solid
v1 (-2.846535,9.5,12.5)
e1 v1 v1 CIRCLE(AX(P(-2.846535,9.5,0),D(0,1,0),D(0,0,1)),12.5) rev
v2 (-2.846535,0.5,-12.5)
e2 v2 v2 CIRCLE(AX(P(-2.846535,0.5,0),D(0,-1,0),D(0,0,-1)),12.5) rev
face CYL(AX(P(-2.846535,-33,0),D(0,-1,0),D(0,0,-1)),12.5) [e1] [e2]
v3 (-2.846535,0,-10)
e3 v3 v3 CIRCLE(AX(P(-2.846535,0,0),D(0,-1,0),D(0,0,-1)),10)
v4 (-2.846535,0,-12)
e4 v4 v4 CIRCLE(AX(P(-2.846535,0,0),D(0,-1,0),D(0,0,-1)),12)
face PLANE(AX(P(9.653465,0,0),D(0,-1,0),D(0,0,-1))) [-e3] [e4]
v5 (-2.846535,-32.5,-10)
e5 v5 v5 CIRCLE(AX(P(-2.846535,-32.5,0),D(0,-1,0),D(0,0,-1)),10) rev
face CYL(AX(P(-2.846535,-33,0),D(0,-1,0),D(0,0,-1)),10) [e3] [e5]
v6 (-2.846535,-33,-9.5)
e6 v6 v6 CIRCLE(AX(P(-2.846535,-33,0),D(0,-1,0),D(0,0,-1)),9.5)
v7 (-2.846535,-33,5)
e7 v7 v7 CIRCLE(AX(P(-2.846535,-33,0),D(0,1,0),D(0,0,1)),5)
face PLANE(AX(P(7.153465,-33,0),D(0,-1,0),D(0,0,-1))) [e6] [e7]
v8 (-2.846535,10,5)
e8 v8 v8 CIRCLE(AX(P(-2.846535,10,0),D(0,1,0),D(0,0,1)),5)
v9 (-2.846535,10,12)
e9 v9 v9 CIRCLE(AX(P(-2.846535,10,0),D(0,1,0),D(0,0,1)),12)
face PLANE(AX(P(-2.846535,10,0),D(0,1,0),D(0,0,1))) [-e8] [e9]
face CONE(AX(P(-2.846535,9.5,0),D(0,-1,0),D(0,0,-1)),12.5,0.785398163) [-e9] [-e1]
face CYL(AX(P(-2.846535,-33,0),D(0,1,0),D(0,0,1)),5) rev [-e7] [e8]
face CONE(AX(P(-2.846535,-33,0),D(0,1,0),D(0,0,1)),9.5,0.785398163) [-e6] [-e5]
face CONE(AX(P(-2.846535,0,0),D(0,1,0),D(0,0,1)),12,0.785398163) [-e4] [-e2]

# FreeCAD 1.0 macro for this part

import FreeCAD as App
import Part
import Sketcher
from FreeCAD import Vector


def edges_at(feature, points):
    """Names of the edges that pass closest to the given points."""
    edges = feature.Shape.Edges
    near = lambda p: min(range(len(edges)), key=lambda i: edges[i].distToShape(Part.Vertex(*p))[0])
    return sorted({f"Edge{near(p) + 1}" for p in points})

doc = App.newDocument("Part")
body = doc.addObject("PartDesign::Body", "Body")

sketch1 = body.newObject("Sketcher::SketchObject", "Sketch")
sketch1.AttachmentSupport = (doc.getObject("XY_Plane"), [""])
sketch1.MapMode = "FlatFace"
sketch1.addGeometry(Part.LineSegment(Vector(9.7, 10, 0), Vector(-2.8, 10, 0)), False)
sketch1.addGeometry(Part.LineSegment(Vector(-2.8, 10, 0), Vector(-2.8, -33, 0)), False)
sketch1.addGeometry(Part.LineSegment(Vector(-2.8, -33, 0), Vector(7.2, -33, 0)), False)
sketch1.addGeometry(Part.LineSegment(Vector(7.2, -33, 0), Vector(7.2, 0, 0)), False)
sketch1.addGeometry(Part.LineSegment(Vector(7.2, 0, 0), Vector(9.7, 0, 0)), False)
sketch1.addGeometry(Part.LineSegment(Vector(9.7, 0, 0), Vector(9.7, 10, 0)), False)
sketch1.addGeometry(Part.LineSegment(Vector(-2.8, -33, 0), Vector(-2.8, 10, 0)), True)
sketch1.addConstraint(Sketcher.Constraint("Coincident", 0, 2, 1, 1))
sketch1.addConstraint(Sketcher.Constraint("Coincident", 1, 2, 2, 1))
sketch1.addConstraint(Sketcher.Constraint("Coincident", 2, 2, 3, 1))
sketch1.addConstraint(Sketcher.Constraint("Coincident", 3, 2, 4, 1))
sketch1.addConstraint(Sketcher.Constraint("Coincident", 4, 2, 5, 1))
sketch1.addConstraint(Sketcher.Constraint("Coincident", 5, 2, 0, 1))
sketch1.addConstraint(Sketcher.Constraint("Horizontal", 0))
sketch1.addConstraint(Sketcher.Constraint("Vertical", 1))
sketch1.addConstraint(Sketcher.Constraint("Horizontal", 2))
sketch1.addConstraint(Sketcher.Constraint("Vertical", 3))
sketch1.addConstraint(Sketcher.Constraint("Horizontal", 4))
sketch1.addConstraint(Sketcher.Constraint("Vertical", 5))
sketch1.addConstraint(Sketcher.Constraint("Vertical", 6))
sketch1.addConstraint(Sketcher.Constraint("Coincident", 6, 1, 1, 2))
sketch1.addConstraint(Sketcher.Constraint("PointOnObject", 3, 2, -1))
sketch1.addConstraint(Sketcher.Constraint("Horizontal", 5, 2, 6, 2))
sketch1.addConstraint(Sketcher.Constraint("Equal", 2, 5))
sketch1.addConstraint(Sketcher.Constraint("DistanceX", 2, 1, 2, 2, 10.0))
sketch1.addConstraint(Sketcher.Constraint("DistanceY", 1, 2, 1, 1, 43.0))
sketch1.addConstraint(Sketcher.Constraint("DistanceX", 0, 2, 0, 1, 12.5))
sketch1.addConstraint(Sketcher.Constraint("DistanceX", 0, 2, -1, 1, 2.846535))
revolution = body.newObject("PartDesign::Revolution", "Revolution")
revolution.Profile = sketch1
revolution.ReferenceAxis = (sketch1, ["Axis0"])
revolution.Angle = 360

sketch2 = body.newObject("Sketcher::SketchObject", "Sketch001")
sketch2.AttachmentSupport = (doc.getObject("XZ_Plane"), [""])
sketch2.MapMode = "FlatFace"
sketch2.AttachmentOffset = App.Placement(Vector(0, 0, -10), App.Rotation())
sketch2.addGeometry(Part.Circle(Vector(-3, 0, 0), Vector(0, 0, 1), 5), False)
sketch2.addConstraint(Sketcher.Constraint("PointOnObject", 0, 3, -1))
sketch2.addConstraint(Sketcher.Constraint("Diameter", 0, 10.0))
sketch2.addConstraint(Sketcher.Constraint("DistanceX", 0, 3, -1, 1, 2.846535))
pocket1 = body.newObject("PartDesign::Pocket", "Pocket")
pocket1.Profile = sketch2
pocket1.Type = "ThroughAll"
pocket1.Reversed = True
doc.recompute()

chamfer = body.newObject("PartDesign::Chamfer", "Chamfer")
chamfer.Base = (pocket1, edges_at(pocket1, [(-12.847, -33, 0), (-15.347, 0, 0), (-15.347, 10, 0)]))
chamfer.Size = 0.5

doc.recompute()
